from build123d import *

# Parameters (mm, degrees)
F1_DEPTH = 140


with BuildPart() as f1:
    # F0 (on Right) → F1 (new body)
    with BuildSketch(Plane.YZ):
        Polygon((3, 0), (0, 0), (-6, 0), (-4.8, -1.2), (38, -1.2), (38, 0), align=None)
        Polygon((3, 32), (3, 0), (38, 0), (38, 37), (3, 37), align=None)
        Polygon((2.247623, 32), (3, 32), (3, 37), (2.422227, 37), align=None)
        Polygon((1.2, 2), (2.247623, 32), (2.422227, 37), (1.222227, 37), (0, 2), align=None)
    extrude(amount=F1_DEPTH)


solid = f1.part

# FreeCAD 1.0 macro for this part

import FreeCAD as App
import Part
import Sketcher
from FreeCAD import Vector
Q = App.Units.Quantity

doc = App.newDocument("Part")
body = doc.addObject("PartDesign::Body", "Body")

sketch1 = body.newObject("Sketcher::SketchObject", "Sketch")
sketch1.AttachmentSupport = (doc.getObject("YZ_Plane"), [""])
sketch1.MapMode = "FlatFace"
sketch1.addGeometry(Part.LineSegment(Vector(-6, 0, 0), Vector(-4.8, -1.2, 0)), False)
sketch1.addGeometry(Part.LineSegment(Vector(-4.8, -1.2, 0), Vector(38, -1.2, 0)), False)
sketch1.addGeometry(Part.LineSegment(Vector(38, -1.2, 0), Vector(38, 37, 0)), False)
sketch1.addGeometry(Part.LineSegment(Vector(38, 37, 0), Vector(1.2, 37, 0)), False)
sketch1.addGeometry(Part.LineSegment(Vector(1.2, 37, 0), Vector(0, 2, 0)), False)
sketch1.addGeometry(Part.LineSegment(Vector(0, 2, 0), Vector(1.2, 2, 0)), False)
sketch1.addGeometry(Part.LineSegment(Vector(1.2, 2, 0), Vector(2.2, 32, 0)), False)
sketch1.addGeometry(Part.LineSegment(Vector(2.2, 32, 0), Vector(3, 32, 0)), False)
sketch1.addGeometry(Part.LineSegment(Vector(3, 32, 0), Vector(3, 0, 0)), False)
sketch1.addGeometry(Part.LineSegment(Vector(3, 0, 0), Vector(-6, 0, 0)), False)
sketch1.addConstraint(Sketcher.Constraint("Coincident", 0, 2, 1, 1))
sketch1.addConstraint(Sketcher.Constraint("Coincident", 1, 2, 2, 1))
sketch1.addConstraint(Sketcher.Constraint("Coincident", 2, 2, 3, 1))
sketch1.addConstraint(Sketcher.Constraint("Coincident", 3, 2, 4, 1))
sketch1.addConstraint(Sketcher.Constraint("Coincident", 4, 2, 5, 1))
sketch1.addConstraint(Sketcher.Constraint("Coincident", 5, 2, 6, 1))
sketch1.addConstraint(Sketcher.Constraint("Coincident", 6, 2, 7, 1))
sketch1.addConstraint(Sketcher.Constraint("Coincident", 7, 2, 8, 1))
sketch1.addConstraint(Sketcher.Constraint("Coincident", 8, 2, 9, 1))
sketch1.addConstraint(Sketcher.Constraint("Coincident", 9, 2, 0, 1))
sketch1.addConstraint(Sketcher.Constraint("Horizontal", 1))
sketch1.addConstraint(Sketcher.Constraint("Vertical", 2))
sketch1.addConstraint(Sketcher.Constraint("Horizontal", 3))
sketch1.addConstraint(Sketcher.Constraint("Horizontal", 5))
sketch1.addConstraint(Sketcher.Constraint("Horizontal", 7))
sketch1.addConstraint(Sketcher.Constraint("Vertical", 8))
sketch1.addConstraint(Sketcher.Constraint("Horizontal", 9))
sketch1.addConstraint(Sketcher.Constraint("PointOnObject", 4, 2, -2))
sketch1.addConstraint(Sketcher.Constraint("PointOnObject", 8, 2, -1))
sketch1.addConstraint(Sketcher.Constraint("Parallel", 4, 6))
sketch1.addConstraint(Sketcher.Constraint("DistanceX", 9, 2, 9, 1, Q("9 mm")))
sketch1.addConstraint(Sketcher.Constraint("DistanceY", 8, 2, 8, 1, Q("32 mm")))
sketch1.addConstraint(Sketcher.Constraint("Angle", 0, Q("-45 deg")))
sketch1.addConstraint(Sketcher.Constraint("Angle", 4, Q("-92 deg")))
sketch1.addConstraint(Sketcher.Constraint("DistanceX", 1, 1, 1, 2, Q("42.8 mm")))
sketch1.addConstraint(Sketcher.Constraint("DistanceX", 5, 1, 5, 2, Q("1.2 mm")))
sketch1.addConstraint(Sketcher.Constraint("DistanceY", 2, 1, 2, 2, Q("38.2 mm")))
sketch1.addConstraint(Sketcher.Constraint("DistanceX", -1, 1, 1, 2, Q("38 mm")))
sketch1.addConstraint(Sketcher.Constraint("DistanceY", -1, 1, 2, 2, Q("37 mm")))
sketch1.addConstraint(Sketcher.Constraint("DistanceY", -1, 1, 4, 2, Q("2 mm")))
pad1 = body.newObject("PartDesign::Pad", "Pad")
pad1.Profile = sketch1
pad1.Length = 140

doc.recompute()
